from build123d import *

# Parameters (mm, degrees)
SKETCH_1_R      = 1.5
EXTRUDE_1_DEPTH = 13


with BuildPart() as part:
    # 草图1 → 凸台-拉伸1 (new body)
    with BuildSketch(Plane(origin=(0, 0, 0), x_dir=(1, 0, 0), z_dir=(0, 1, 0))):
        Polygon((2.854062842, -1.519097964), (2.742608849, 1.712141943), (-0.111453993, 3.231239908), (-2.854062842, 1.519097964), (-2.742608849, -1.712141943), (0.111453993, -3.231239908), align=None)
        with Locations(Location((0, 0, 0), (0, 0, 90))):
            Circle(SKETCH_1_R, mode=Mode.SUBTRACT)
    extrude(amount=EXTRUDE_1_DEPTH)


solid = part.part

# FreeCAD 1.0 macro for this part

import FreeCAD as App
import Part
import Sketcher
from FreeCAD import Vector


def add_polygon(sketch, points):
    """Adds a closed chain of lines whose ends are joined by coincident constraints."""
    first, n = sketch.GeometryCount, len(points)
    for a, b in zip(points, points[1:] + points[:1]):
        sketch.addGeometry(Part.LineSegment(App.Vector(*a, 0), App.Vector(*b, 0)), False)
    for i in range(n):
        sketch.addConstraint(Sketcher.Constraint("Coincident", first + i, 2, first + (i + 1) % n, 1))

doc = App.newDocument("Part")
body = doc.addObject("PartDesign::Body", "Body")

# Sketch on XZ plane
sketch1 = body.newObject("Sketcher::SketchObject", "Sketch")
sketch1.AttachmentSupport = (doc.getObject("XZ_Plane"), [""])
sketch1.MapMode = "FlatFace"
add_polygon(sketch1, [(2.9, 1.5), (2.7, -1.7), (-0.1, -3.2), (-2.9, -1.5), (-2.7, 1.7), (0.1, 3.2)])  # lines 0-5
sketch1.addGeometry(Part.Circle(Vector(0, 0, 0), Vector(0, 0, 1), 1.5), False)  # 6
sketch1.addConstraint([
    Sketcher.Constraint("Coincident", 6, 3, -1, 1),
    Sketcher.Constraint("Symmetric", 0, 2, 3, 2, -1, 1),
    Sketcher.Constraint("Symmetric", 1, 2, 4, 2, -1, 1),
    Sketcher.Constraint("Symmetric", 2, 2, 5, 2, -1, 1),
    Sketcher.Constraint("Equal", 0, 1),
    Sketcher.Constraint("Equal", 1, 2),
    Sketcher.Constraint("Diameter", 6, 3.0),
    Sketcher.Constraint("Distance", 0, 3.233162),
    Sketcher.Constraint("DistanceX", -1, 1, 0, 2, 2.742609),
    Sketcher.Constraint("DistanceY", 0, 2, -1, 1, 1.712142),
    Sketcher.Constraint("DistanceY", 1, 2, -1, 1, 3.23124),
])
pad1 = body.newObject("PartDesign::Pad", "Pad")
pad1.Profile = sketch1
pad1.Length = 13
pad1.Reversed = True

doc.recompute()
